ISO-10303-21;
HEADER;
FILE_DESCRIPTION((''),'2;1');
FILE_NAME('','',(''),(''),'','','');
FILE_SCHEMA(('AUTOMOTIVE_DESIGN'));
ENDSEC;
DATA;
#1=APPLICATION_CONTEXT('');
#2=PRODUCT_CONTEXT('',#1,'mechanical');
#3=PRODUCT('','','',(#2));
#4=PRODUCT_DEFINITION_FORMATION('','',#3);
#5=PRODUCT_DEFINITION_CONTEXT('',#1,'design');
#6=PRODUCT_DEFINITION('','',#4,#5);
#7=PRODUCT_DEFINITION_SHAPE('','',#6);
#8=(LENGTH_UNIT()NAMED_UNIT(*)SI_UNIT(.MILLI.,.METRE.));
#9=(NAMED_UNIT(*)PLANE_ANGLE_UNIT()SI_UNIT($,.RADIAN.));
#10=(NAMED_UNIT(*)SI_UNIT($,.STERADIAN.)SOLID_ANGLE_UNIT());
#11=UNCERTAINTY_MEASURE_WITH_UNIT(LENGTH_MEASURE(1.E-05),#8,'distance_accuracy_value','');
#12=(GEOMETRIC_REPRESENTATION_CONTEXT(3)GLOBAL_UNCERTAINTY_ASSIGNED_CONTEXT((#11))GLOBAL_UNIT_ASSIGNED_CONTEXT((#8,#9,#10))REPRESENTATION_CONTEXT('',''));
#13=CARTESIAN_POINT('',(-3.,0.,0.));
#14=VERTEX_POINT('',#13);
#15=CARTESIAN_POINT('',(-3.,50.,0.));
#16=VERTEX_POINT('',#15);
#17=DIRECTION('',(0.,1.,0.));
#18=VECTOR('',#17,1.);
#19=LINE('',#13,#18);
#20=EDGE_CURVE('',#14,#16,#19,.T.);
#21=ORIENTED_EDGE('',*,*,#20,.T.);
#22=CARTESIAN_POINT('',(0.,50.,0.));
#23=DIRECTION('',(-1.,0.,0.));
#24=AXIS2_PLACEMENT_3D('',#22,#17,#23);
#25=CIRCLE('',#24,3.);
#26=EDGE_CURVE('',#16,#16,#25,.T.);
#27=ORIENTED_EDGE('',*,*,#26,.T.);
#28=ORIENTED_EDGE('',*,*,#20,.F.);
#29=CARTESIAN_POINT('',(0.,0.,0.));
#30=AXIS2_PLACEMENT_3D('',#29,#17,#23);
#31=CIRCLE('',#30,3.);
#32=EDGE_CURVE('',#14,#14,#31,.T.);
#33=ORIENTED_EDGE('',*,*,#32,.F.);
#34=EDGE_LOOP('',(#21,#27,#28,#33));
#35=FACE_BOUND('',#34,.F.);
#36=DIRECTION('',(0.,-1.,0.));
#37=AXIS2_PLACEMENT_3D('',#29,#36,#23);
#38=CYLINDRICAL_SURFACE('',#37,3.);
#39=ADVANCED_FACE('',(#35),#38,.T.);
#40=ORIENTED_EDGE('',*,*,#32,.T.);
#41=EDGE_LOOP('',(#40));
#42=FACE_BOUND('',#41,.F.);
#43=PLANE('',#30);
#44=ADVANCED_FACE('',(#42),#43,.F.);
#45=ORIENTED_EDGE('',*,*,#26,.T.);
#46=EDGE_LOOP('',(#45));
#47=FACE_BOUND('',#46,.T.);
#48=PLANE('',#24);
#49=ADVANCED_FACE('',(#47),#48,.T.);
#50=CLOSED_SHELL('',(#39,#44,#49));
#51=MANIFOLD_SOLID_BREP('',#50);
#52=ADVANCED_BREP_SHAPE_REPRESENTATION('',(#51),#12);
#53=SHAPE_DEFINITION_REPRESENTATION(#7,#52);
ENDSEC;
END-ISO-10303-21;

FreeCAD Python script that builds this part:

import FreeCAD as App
import Part
import Sketcher
from FreeCAD import Vector
Q = App.Units.Quantity

doc = App.newDocument("Part")
body = doc.addObject("PartDesign::Body", "Body")

sketch1 = body.newObject("Sketcher::SketchObject", "Sketch")
sketch1.AttachmentSupport = (doc.getObject("XZ_Plane"), [""])
sketch1.MapMode = "FlatFace"
sketch1.addGeometry(Part.Circle(Vector(0, 0, 0), Vector(0, 0, 1), 3), False)
sketch1.addConstraint([
    Sketcher.Constraint("Coincident", 0, 3, -1, 1),
    Sketcher.Constraint("Diameter", 0, Q("6 mm")),
])
pad1 = body.newObject("PartDesign::Pad", "Pad")
pad1.Profile = sketch1
pad1.Length = 50
pad1.Reversed = True

doc.recompute()
